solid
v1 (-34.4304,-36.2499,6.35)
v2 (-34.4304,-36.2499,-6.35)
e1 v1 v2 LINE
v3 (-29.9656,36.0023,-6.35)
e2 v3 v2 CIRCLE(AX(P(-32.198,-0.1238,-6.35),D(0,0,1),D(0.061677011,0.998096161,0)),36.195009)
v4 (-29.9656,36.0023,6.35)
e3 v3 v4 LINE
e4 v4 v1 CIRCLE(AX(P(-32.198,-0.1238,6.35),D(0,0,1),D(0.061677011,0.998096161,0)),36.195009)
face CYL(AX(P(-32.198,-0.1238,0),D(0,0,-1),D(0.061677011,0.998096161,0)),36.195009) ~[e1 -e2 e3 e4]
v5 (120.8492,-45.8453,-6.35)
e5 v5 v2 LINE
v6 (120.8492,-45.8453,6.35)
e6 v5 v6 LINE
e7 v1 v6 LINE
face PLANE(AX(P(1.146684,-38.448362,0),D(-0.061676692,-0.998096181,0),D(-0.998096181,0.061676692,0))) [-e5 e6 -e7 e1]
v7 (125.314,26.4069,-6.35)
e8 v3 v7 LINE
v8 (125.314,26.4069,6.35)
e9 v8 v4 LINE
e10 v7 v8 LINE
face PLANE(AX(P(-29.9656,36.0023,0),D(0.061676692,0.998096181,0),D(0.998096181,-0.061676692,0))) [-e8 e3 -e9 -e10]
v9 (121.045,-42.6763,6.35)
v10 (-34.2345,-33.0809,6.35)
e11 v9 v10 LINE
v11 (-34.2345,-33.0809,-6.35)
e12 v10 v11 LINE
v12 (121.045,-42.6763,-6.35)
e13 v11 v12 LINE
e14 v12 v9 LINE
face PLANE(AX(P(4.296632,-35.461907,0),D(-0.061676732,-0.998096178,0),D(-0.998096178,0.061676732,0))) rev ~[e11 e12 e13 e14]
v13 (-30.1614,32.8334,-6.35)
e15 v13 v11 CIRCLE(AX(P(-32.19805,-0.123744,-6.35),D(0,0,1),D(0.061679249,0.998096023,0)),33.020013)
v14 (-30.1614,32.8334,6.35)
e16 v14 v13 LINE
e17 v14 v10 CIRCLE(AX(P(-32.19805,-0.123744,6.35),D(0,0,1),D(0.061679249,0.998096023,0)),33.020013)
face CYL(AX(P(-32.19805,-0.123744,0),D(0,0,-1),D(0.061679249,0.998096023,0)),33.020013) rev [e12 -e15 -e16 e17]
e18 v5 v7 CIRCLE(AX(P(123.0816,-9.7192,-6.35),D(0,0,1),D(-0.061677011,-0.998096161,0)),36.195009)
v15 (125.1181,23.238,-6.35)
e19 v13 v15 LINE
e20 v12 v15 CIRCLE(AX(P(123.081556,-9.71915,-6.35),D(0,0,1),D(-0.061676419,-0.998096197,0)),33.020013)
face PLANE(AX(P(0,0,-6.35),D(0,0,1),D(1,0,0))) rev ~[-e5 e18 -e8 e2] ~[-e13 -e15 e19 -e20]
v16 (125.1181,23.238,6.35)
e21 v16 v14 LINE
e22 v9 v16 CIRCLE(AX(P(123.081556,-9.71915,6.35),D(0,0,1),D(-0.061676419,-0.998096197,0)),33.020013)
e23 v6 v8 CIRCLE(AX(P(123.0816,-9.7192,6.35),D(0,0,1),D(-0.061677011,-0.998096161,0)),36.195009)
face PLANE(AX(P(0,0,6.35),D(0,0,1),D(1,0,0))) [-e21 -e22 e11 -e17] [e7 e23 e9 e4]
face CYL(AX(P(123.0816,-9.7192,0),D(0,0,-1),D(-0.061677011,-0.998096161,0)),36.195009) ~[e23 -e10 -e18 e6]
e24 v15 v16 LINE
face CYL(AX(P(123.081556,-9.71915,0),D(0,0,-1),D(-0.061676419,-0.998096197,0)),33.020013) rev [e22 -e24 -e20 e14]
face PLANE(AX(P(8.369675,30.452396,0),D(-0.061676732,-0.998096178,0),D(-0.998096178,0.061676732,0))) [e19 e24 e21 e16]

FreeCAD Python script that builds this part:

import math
import FreeCAD as App
import Part
import Sketcher

V = App.Vector
Q = App.Units.Quantity

doc = App.newDocument("Part")
body = doc.addObject("PartDesign::Body", "Body")

sketch1 = body.newObject("Sketcher::SketchObject", "Sketch")
sketch1.AttachmentSupport = (doc.getObject("XY_Plane"), [""])
sketch1.MapMode = "FlatFace"
sketch1.addGeometry([
    Part.LineSegment(V(-34.4304, -36.2499, 0), V(120.8492, -45.8453, 0)),
    Part.ArcOfCircle(Part.Circle(V(123.0816, -9.7192, 0), V(0, 0, 1), 36.195009), math.radians(-93.536077), math.radians(86.463923)),
    Part.LineSegment(V(125.314, 26.4069, 0), V(-29.9656, 36.0023, 0)),
    Part.ArcOfCircle(Part.Circle(V(-32.198, -0.1238, 0), V(0, 0, 1), 36.195009), math.radians(86.463923), math.radians(266.463923)),
    Part.LineSegment(V(-30.1614, 32.8334, 0), V(125.1181, 23.238, 0)),
    Part.ArcOfCircle(Part.Circle(V(123.0816, -9.7192, 0), V(0, 0, 1), 33.019966), math.radians(-93.536124), math.radians(86.46406)),
    Part.LineSegment(V(121.045, -42.6763, 0), V(-34.2345, -33.0809, 0)),
    Part.ArcOfCircle(Part.Circle(V(-32.198, -0.1238, 0), V(0, 0, 1), 33.020066), math.radians(86.463887), math.radians(266.464049)),
], False)
sketch1.addConstraint([
    Sketcher.Constraint("Tangent", 0, 2, 1, 1),
    Sketcher.Constraint("Tangent", 1, 2, 2, 1),
    Sketcher.Constraint("Tangent", 2, 2, 3, 1),
    Sketcher.Constraint("Tangent", 3, 2, 0, 1),
    Sketcher.Constraint("Tangent", 4, 2, 5, 2),
    Sketcher.Constraint("Tangent", 5, 1, 6, 1),
    Sketcher.Constraint("Tangent", 6, 2, 7, 2),
    Sketcher.Constraint("Tangent", 7, 1, 4, 1),
    Sketcher.Constraint("Coincident", 5, 3, 1, 3),
    Sketcher.Constraint("Coincident", 7, 3, 3, 3),
    Sketcher.Constraint("Equal", 1, 3),
    Sketcher.Constraint("Equal", 5, 7),
    Sketcher.Constraint("Radius", 5, Q("1.3 in")),
    Sketcher.Constraint("Radius", 1, Q("1.425 in")),
    Sketcher.Constraint("DistanceX", -1, 1, 4, 2, Q("4.9259 in")),
    Sketcher.Constraint("DistanceY", 6, 2, -1, 1, Q("1.3024 in")),
    Sketcher.Constraint("DistanceX", 0, 2, 1, 3, Q("0.0879 in")),
    Sketcher.Constraint("Distance", 0, 155.5758),
])
pad1 = body.newObject("PartDesign::Pad", "Pad")
pad1.Profile = sketch1
pad1.Length = Q("0.5 in")
pad1.Midplane = True

doc.recompute()
